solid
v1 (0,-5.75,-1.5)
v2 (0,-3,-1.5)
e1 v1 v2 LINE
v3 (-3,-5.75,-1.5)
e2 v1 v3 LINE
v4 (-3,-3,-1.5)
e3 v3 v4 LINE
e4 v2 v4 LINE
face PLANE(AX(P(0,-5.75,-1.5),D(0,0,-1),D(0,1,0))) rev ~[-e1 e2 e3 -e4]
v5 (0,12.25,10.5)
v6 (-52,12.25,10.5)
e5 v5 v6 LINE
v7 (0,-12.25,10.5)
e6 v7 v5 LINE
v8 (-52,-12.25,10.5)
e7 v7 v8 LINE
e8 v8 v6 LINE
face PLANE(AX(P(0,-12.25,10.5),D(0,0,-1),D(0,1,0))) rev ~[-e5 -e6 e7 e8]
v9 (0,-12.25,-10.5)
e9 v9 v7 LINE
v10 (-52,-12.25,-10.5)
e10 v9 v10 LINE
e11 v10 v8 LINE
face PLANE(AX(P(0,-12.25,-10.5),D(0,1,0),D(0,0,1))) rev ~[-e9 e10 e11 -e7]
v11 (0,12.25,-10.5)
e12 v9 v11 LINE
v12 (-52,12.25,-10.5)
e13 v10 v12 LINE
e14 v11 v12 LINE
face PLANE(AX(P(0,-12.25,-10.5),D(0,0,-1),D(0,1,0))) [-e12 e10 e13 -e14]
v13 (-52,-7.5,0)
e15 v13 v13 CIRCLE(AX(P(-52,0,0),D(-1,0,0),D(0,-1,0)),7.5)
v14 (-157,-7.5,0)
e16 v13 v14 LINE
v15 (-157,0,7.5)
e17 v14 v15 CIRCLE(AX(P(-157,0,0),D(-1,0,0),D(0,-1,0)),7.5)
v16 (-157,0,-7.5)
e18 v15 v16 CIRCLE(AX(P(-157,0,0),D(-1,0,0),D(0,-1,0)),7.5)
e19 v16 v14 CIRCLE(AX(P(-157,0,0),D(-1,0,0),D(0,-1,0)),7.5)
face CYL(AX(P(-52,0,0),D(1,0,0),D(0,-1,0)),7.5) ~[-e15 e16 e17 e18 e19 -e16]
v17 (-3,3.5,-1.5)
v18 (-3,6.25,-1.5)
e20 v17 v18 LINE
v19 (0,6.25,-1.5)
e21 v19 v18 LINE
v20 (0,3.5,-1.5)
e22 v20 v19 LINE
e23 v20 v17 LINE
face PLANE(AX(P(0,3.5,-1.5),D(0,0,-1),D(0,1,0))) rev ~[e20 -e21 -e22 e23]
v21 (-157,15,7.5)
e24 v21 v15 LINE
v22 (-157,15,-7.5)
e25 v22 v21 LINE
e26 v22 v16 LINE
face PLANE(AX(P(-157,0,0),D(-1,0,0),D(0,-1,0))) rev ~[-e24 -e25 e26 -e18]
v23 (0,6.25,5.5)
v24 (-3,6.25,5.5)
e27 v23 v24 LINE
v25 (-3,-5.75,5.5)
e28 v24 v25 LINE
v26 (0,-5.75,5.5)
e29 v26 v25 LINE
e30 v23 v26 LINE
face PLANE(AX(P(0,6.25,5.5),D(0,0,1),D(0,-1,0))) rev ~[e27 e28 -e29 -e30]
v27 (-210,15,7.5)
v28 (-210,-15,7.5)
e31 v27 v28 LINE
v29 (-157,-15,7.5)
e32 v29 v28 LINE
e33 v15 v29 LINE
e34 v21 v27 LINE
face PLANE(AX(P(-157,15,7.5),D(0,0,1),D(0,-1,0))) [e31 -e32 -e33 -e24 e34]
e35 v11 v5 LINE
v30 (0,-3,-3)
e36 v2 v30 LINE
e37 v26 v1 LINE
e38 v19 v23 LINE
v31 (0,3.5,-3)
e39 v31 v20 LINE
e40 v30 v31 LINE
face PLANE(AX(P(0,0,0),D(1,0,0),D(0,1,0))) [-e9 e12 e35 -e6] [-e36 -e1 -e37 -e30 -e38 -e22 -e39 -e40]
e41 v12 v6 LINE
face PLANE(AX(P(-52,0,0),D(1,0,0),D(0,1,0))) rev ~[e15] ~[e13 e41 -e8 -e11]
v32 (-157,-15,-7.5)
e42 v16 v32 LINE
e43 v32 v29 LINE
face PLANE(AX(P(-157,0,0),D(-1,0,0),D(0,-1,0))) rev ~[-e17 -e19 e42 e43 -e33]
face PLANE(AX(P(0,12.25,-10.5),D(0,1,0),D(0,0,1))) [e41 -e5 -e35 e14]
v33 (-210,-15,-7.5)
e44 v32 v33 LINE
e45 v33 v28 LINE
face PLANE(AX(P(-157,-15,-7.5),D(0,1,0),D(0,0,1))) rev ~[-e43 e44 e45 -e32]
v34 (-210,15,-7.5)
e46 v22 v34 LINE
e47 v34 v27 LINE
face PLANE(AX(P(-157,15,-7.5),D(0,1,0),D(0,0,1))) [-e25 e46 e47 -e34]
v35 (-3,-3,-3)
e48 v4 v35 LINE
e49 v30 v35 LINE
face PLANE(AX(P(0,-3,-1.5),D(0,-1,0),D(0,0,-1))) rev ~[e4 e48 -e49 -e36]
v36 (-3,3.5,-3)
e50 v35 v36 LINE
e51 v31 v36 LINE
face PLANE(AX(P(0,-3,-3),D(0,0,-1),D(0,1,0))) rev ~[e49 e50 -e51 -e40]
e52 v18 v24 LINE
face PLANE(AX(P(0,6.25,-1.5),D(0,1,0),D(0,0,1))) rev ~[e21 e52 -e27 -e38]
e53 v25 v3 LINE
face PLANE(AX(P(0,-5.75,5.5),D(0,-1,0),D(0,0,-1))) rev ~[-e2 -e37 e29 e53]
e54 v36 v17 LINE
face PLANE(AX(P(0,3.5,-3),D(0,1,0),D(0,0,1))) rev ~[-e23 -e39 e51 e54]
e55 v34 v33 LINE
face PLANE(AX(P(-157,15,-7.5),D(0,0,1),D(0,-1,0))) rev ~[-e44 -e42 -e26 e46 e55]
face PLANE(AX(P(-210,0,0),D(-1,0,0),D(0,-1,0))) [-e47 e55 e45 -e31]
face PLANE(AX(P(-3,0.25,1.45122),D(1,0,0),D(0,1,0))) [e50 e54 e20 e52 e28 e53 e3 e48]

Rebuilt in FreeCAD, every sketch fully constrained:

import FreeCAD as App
import Part
import Sketcher
from FreeCAD import Vector
Q = App.Units.Quantity


def add_polygon(sketch, points):
    """Adds a closed chain of lines whose ends are joined by coincident constraints."""
    first, n = sketch.GeometryCount, len(points)
    for a, b in zip(points, points[1:] + points[:1]):
        sketch.addGeometry(Part.LineSegment(App.Vector(*a, 0), App.Vector(*b, 0)), False)
    for i in range(n):
        sketch.addConstraint(Sketcher.Constraint("Coincident", first + i, 2, first + (i + 1) % n, 1))

doc = App.newDocument("Part")
body = doc.addObject("PartDesign::Body", "Body")

# Sketch on YZ plane
sketch1 = doc.addObject("Sketcher::SketchObject", "Sketch")
body.addObject(sketch1)
sketch1.AttachmentSupport = (doc.YZ_Plane, [""])
sketch1.MapMode = "FlatFace"
add_polygon(sketch1, [(-12, 10), (-12, -10), (12, -10), (12, 10)])  # lines 0-3
sketch1.addConstraint([
    Sketcher.Constraint("Vertical", 0),
    Sketcher.Constraint("Horizontal", 1),
    Sketcher.Constraint("Vertical", 2),
    Sketcher.Constraint("Horizontal", 3),
    Sketcher.Constraint("Symmetric", 0, 2, 2, 2, -1, 1),
    Sketcher.Constraint("DistanceY", 0, 2, 0, 1, Q("21 mm")),
    Sketcher.Constraint("DistanceX", 1, 1, 1, 2, Q("24.5 mm")),
])
pad1 = doc.addObject("PartDesign::Pad", "Pad")
body.addObject(pad1)
pad1.Profile = sketch1
pad1.Length = 52
pad1.Reversed = True

# Sketch on YZ plane
sketch2 = doc.addObject("Sketcher::SketchObject", "Sketch001")
body.addObject(sketch2)
sketch2.AttachmentSupport = (doc.YZ_Plane, [""])
sketch2.MapMode = "FlatFace"
sketch2.AttachmentOffset = App.Placement(Vector(0, 0, -52), App.Rotation())
sketch2.addGeometry(Part.Circle(Vector(0, 0, 0), Vector(0, 0, 1), 8), False)
sketch2.addConstraint([
    Sketcher.Constraint("Coincident", 0, 3, -1, 1),
    Sketcher.Constraint("Diameter", 0, Q("15 mm")),
])
pad2 = doc.addObject("PartDesign::Pad", "Pad001")
body.addObject(pad2)
pad2.Profile = sketch2
pad2.Length = 105
pad2.Reversed = True

# Sketch on YZ plane
sketch3 = doc.addObject("Sketcher::SketchObject", "Sketch002")
body.addObject(sketch3)
sketch3.AttachmentSupport = (doc.YZ_Plane, [""])
sketch3.MapMode = "FlatFace"
sketch3.AttachmentOffset = App.Placement(Vector(0, 0, -157), App.Rotation())
add_polygon(sketch3, [(15, 8), (15, -8), (-15, -8), (-15, 8)])  # lines 0-3
sketch3.addConstraint([
    Sketcher.Constraint("Vertical", 0),
    Sketcher.Constraint("Horizontal", 1),
    Sketcher.Constraint("Vertical", 2),
    Sketcher.Constraint("Horizontal", 3),
    Sketcher.Constraint("Symmetric", 0, 2, 2, 2, -1, 1),
    Sketcher.Constraint("DistanceX", 1, 2, 1, 1, Q("30 mm")),
    Sketcher.Constraint("DistanceY", 0, 2, 0, 1, Q("15 mm")),
])
pad3 = doc.addObject("PartDesign::Pad", "Pad002")
body.addObject(pad3)
pad3.Profile = sketch3
pad3.Length = 53
pad3.Reversed = True

# Sketch on YZ plane
sketch4 = doc.addObject("Sketcher::SketchObject", "Sketch003")
body.addObject(sketch4)
sketch4.AttachmentSupport = (doc.YZ_Plane, [""])
sketch4.MapMode = "FlatFace"
add_polygon(sketch4, [(-5.8, 5.5), (-5.8, -1.5), (-3, -1.5), (-3, -3), (3.5, -3), (3.5, -1.5), (6.2, -1.5), (6.2, 5.5)])  # lines 0-7
sketch4.addConstraint([
    Sketcher.Constraint("Vertical", 0),
    Sketcher.Constraint("Horizontal", 1),
    Sketcher.Constraint("Vertical", 2),
    Sketcher.Constraint("Horizontal", 3),
    Sketcher.Constraint("Vertical", 4),
    Sketcher.Constraint("Horizontal", 5),
    Sketcher.Constraint("Vertical", 6),
    Sketcher.Constraint("Horizontal", 7),
    Sketcher.Constraint("Horizontal", 1, 2, 4, 2),
    Sketcher.Constraint("Equal", 1, 5),
    Sketcher.Constraint("DistanceX", 7, 2, 7, 1, Q("12 mm")),
    Sketcher.Constraint("DistanceY", 0, 2, 0, 1, Q("7 mm")),
    Sketcher.Constraint("DistanceX", 3, 1, 3, 2, Q("6.5 mm")),
    Sketcher.Constraint("DistanceY", 2, 2, 2, 1, Q("1.5 mm")),
    Sketcher.Constraint("DistanceX", 1, 2, -1, 1, Q("3 mm")),
    Sketcher.Constraint("DistanceY", 2, 2, -1, 1, Q("3 mm")),
])
pocket1 = doc.addObject("PartDesign::Pocket", "Pocket")
body.addObject(pocket1)
pocket1.Profile = sketch4
pocket1.Length = 3

doc.recompute()
